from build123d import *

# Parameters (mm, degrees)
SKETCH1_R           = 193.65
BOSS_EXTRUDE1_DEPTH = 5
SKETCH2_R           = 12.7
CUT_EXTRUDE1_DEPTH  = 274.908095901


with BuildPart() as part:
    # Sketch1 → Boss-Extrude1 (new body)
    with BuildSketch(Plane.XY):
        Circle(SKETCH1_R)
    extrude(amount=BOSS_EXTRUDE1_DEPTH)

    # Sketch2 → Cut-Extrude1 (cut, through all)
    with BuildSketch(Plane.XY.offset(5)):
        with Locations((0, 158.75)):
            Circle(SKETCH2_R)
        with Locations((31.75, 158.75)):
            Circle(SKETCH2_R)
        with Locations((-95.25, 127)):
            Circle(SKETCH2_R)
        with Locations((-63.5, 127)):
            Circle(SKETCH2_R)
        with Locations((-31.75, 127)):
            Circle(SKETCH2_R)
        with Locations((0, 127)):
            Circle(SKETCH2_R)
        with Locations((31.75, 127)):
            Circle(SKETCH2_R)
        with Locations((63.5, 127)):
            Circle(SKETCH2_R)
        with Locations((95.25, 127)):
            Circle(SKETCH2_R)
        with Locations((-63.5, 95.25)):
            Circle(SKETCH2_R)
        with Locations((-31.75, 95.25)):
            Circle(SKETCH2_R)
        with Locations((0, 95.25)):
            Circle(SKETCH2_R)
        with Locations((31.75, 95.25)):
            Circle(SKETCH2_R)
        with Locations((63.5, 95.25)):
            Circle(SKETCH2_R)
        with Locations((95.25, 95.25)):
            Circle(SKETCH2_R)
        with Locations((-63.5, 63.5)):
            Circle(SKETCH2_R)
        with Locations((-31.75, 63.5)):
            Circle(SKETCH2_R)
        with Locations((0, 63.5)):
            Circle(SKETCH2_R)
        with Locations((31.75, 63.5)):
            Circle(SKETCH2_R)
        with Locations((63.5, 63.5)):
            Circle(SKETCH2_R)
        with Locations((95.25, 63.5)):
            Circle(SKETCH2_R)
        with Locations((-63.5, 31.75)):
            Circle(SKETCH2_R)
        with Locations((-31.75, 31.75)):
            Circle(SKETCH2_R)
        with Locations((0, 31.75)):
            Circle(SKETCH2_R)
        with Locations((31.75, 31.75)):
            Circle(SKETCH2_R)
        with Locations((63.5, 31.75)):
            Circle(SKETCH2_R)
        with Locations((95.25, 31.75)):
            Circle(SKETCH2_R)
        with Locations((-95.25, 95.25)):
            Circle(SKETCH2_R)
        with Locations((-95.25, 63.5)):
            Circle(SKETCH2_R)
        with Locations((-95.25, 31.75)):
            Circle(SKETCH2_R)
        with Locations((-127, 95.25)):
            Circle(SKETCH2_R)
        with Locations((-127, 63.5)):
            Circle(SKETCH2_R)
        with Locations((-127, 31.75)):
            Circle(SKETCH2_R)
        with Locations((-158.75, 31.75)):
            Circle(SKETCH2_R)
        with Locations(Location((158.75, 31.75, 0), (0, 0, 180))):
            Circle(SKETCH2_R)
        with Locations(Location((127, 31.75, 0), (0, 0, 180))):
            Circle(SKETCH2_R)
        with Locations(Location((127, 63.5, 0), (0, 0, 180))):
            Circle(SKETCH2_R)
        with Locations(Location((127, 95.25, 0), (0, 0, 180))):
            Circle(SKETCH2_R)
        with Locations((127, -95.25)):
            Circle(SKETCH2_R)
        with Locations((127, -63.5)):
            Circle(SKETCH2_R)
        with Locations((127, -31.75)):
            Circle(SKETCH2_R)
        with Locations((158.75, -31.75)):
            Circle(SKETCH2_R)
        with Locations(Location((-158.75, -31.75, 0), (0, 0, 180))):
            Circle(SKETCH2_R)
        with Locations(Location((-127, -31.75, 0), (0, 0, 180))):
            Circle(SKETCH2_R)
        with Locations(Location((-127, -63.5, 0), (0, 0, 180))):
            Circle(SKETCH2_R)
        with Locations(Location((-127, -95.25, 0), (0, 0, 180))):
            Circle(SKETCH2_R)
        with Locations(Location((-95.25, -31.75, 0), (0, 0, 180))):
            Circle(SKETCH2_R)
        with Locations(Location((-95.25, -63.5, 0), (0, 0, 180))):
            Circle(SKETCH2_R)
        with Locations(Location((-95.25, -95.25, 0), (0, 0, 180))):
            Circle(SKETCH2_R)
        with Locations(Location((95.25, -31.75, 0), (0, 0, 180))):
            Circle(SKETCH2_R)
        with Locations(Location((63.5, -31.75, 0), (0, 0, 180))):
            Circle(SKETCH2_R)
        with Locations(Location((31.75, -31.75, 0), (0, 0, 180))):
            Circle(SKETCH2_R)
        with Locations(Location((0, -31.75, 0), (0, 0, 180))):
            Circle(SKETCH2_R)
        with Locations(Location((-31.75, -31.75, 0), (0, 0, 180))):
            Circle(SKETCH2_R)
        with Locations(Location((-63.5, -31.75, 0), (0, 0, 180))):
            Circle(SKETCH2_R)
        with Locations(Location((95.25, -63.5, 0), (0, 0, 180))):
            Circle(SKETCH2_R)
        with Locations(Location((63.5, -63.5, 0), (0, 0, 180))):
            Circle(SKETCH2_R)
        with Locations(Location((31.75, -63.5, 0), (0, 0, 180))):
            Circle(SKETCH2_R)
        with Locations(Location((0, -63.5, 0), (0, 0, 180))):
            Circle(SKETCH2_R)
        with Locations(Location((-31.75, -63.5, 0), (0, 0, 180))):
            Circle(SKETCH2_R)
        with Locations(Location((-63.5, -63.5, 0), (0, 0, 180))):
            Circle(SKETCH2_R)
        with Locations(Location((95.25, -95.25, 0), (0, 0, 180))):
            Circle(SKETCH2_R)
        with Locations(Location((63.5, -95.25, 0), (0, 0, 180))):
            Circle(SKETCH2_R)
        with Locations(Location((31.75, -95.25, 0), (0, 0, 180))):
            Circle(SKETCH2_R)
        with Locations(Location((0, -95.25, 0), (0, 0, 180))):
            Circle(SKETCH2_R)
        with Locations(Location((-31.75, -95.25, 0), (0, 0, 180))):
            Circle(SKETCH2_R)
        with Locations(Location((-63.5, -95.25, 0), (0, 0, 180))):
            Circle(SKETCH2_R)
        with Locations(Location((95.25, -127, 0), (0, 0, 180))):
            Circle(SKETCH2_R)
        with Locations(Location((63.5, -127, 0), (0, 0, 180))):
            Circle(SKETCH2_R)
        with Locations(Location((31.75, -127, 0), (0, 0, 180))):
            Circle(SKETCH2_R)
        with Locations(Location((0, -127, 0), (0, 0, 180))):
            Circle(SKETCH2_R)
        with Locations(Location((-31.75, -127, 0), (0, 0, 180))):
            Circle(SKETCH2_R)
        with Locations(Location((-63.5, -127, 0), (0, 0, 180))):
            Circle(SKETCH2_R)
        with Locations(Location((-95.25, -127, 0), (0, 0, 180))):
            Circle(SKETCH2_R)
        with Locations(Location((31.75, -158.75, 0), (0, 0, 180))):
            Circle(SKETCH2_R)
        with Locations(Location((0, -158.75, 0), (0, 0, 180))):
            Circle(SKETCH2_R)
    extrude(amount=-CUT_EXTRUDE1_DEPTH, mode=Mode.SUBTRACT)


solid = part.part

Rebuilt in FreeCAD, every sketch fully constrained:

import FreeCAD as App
import Part
import Sketcher
from FreeCAD import Vector

doc = App.newDocument("Part")
params = doc.addObject("Spreadsheet::Sheet", "Params")
for row, (alias, value) in enumerate([
    ("sketch1_diameter", "387.3 mm"),
    ("pad1_length", "5 mm"),
    ("sketch2_diameter", "25.4 mm"),
], start=1):
    params.set(f"A{row}", alias)
    params.set(f"B{row}", "=" + value)
    params.setAlias(f"B{row}", alias)

body = doc.addObject("PartDesign::Body", "Body")

# Sketch on XY plane
sketch1 = body.newObject("Sketcher::SketchObject", "Sketch")
sketch1.AttachmentSupport = (doc.getObject("XY_Plane"), [""])
sketch1.MapMode = "FlatFace"
sketch1.addGeometry(Part.Circle(Vector(0, 0, 0), Vector(0, 0, 1), 194), False)
sketch1.addConstraint(Sketcher.Constraint("Coincident", 0, 3, -1, 1))
sketch1.addConstraint(Sketcher.Constraint("Diameter", 0, 387.3))
sketch1.setExpression("Constraints[1]", "Params.sketch1_diameter")
pad1 = body.newObject("PartDesign::Pad", "Pad")
pad1.Profile = sketch1
pad1.setExpression("Length", "Params.pad1_length")

# Sketch on XY plane
sketch2 = body.newObject("Sketcher::SketchObject", "Sketch001")
sketch2.AttachmentSupport = (doc.getObject("XY_Plane"), [""])
sketch2.MapMode = "FlatFace"
sketch2.AttachmentOffset = App.Placement(Vector(0, 0, 5), App.Rotation())
sketch2.addGeometry(Part.Circle(Vector(0, 159, 0), Vector(0, 0, 1), 13), False)
sketch2.addGeometry(Part.Circle(Vector(32, 159, 0), Vector(0, 0, 1), 13), False)
sketch2.addGeometry(Part.Circle(Vector(-95, 127, 0), Vector(0, 0, 1), 13), False)
sketch2.addGeometry(Part.Circle(Vector(-64, 127, 0), Vector(0, 0, 1), 13), False)
sketch2.addGeometry(Part.Circle(Vector(-32, 127, 0), Vector(0, 0, 1), 13), False)
sketch2.addGeometry(Part.Circle(Vector(0, 127, 0), Vector(0, 0, 1), 13), False)
sketch2.addGeometry(Part.Circle(Vector(32, 127, 0), Vector(0, 0, 1), 13), False)
sketch2.addGeometry(Part.Circle(Vector(64, 127, 0), Vector(0, 0, 1), 13), False)
sketch2.addGeometry(Part.Circle(Vector(95, 127, 0), Vector(0, 0, 1), 13), False)
sketch2.addGeometry(Part.Circle(Vector(-64, 95, 0), Vector(0, 0, 1), 13), False)
sketch2.addGeometry(Part.Circle(Vector(-32, 95, 0), Vector(0, 0, 1), 13), False)
sketch2.addGeometry(Part.Circle(Vector(0, 95, 0), Vector(0, 0, 1), 13), False)
sketch2.addGeometry(Part.Circle(Vector(32, 95, 0), Vector(0, 0, 1), 13), False)
sketch2.addGeometry(Part.Circle(Vector(64, 95, 0), Vector(0, 0, 1), 13), False)
sketch2.addGeometry(Part.Circle(Vector(95, 95, 0), Vector(0, 0, 1), 13), False)
sketch2.addGeometry(Part.Circle(Vector(-64, 64, 0), Vector(0, 0, 1), 13), False)
sketch2.addGeometry(Part.Circle(Vector(-32, 64, 0), Vector(0, 0, 1), 13), False)
sketch2.addGeometry(Part.Circle(Vector(0, 64, 0), Vector(0, 0, 1), 13), False)
sketch2.addGeometry(Part.Circle(Vector(32, 64, 0), Vector(0, 0, 1), 13), False)
sketch2.addGeometry(Part.Circle(Vector(64, 64, 0), Vector(0, 0, 1), 13), False)
sketch2.addGeometry(Part.Circle(Vector(95, 64, 0), Vector(0, 0, 1), 13), False)
sketch2.addGeometry(Part.Circle(Vector(-64, 32, 0), Vector(0, 0, 1), 13), False)
sketch2.addGeometry(Part.Circle(Vector(-32, 32, 0), Vector(0, 0, 1), 13), False)
sketch2.addGeometry(Part.Circle(Vector(0, 32, 0), Vector(0, 0, 1), 13), False)
sketch2.addGeometry(Part.Circle(Vector(32, 32, 0), Vector(0, 0, 1), 13), False)
sketch2.addGeometry(Part.Circle(Vector(64, 32, 0), Vector(0, 0, 1), 13), False)
sketch2.addGeometry(Part.Circle(Vector(95, 32, 0), Vector(0, 0, 1), 13), False)
sketch2.addGeometry(Part.Circle(Vector(-95, 95, 0), Vector(0, 0, 1), 13), False)
sketch2.addGeometry(Part.Circle(Vector(-95, 64, 0), Vector(0, 0, 1), 13), False)
sketch2.addGeometry(Part.Circle(Vector(-95, 32, 0), Vector(0, 0, 1), 13), False)
sketch2.addGeometry(Part.Circle(Vector(-127, 95, 0), Vector(0, 0, 1), 13), False)
sketch2.addGeometry(Part.Circle(Vector(-127, 64, 0), Vector(0, 0, 1), 13), False)
sketch2.addGeometry(Part.Circle(Vector(-127, 32, 0), Vector(0, 0, 1), 13), False)
sketch2.addGeometry(Part.Circle(Vector(-159, 32, 0), Vector(0, 0, 1), 13), False)
sketch2.addGeometry(Part.Circle(Vector(159, 32, 0), Vector(0, 0, 1), 13), False)
sketch2.addGeometry(Part.Circle(Vector(127, 32, 0), Vector(0, 0, 1), 13), False)
sketch2.addGeometry(Part.Circle(Vector(127, 64, 0), Vector(0, 0, 1), 13), False)
sketch2.addGeometry(Part.Circle(Vector(127, 95, 0), Vector(0, 0, 1), 13), False)
sketch2.addGeometry(Part.Circle(Vector(127, -95, 0), Vector(0, 0, 1), 13), False)
sketch2.addGeometry(Part.Circle(Vector(127, -64, 0), Vector(0, 0, 1), 13), False)
sketch2.addGeometry(Part.Circle(Vector(127, -32, 0), Vector(0, 0, 1), 13), False)
sketch2.addGeometry(Part.Circle(Vector(159, -32, 0), Vector(0, 0, 1), 13), False)
sketch2.addGeometry(Part.Circle(Vector(-159, -32, 0), Vector(0, 0, 1), 13), False)
sketch2.addGeometry(Part.Circle(Vector(-127, -32, 0), Vector(0, 0, 1), 13), False)
sketch2.addGeometry(Part.Circle(Vector(-127, -64, 0), Vector(0, 0, 1), 13), False)
sketch2.addGeometry(Part.Circle(Vector(-127, -95, 0), Vector(0, 0, 1), 13), False)
sketch2.addGeometry(Part.Circle(Vector(-95, -32, 0), Vector(0, 0, 1), 13), False)
sketch2.addGeometry(Part.Circle(Vector(-95, -64, 0), Vector(0, 0, 1), 13), False)
sketch2.addGeometry(Part.Circle(Vector(-95, -95, 0), Vector(0, 0, 1), 13), False)
sketch2.addGeometry(Part.Circle(Vector(95, -32, 0), Vector(0, 0, 1), 13), False)
sketch2.addGeometry(Part.Circle(Vector(64, -32, 0), Vector(0, 0, 1), 13), False)
sketch2.addGeometry(Part.Circle(Vector(32, -32, 0), Vector(0, 0, 1), 13), False)
sketch2.addGeometry(Part.Circle(Vector(0, -32, 0), Vector(0, 0, 1), 13), False)
sketch2.addGeometry(Part.Circle(Vector(-32, -32, 0), Vector(0, 0, 1), 13), False)
sketch2.addGeometry(Part.Circle(Vector(-64, -32, 0), Vector(0, 0, 1), 13), False)
sketch2.addGeometry(Part.Circle(Vector(95, -64, 0), Vector(0, 0, 1), 13), False)
sketch2.addGeometry(Part.Circle(Vector(64, -64, 0), Vector(0, 0, 1), 13), False)
sketch2.addGeometry(Part.Circle(Vector(32, -64, 0), Vector(0, 0, 1), 13), False)
sketch2.addGeometry(Part.Circle(Vector(0, -64, 0), Vector(0, 0, 1), 13), False)
sketch2.addGeometry(Part.Circle(Vector(-32, -64, 0), Vector(0, 0, 1), 13), False)
sketch2.addGeometry(Part.Circle(Vector(-64, -64, 0), Vector(0, 0, 1), 13), False)
sketch2.addGeometry(Part.Circle(Vector(95, -95, 0), Vector(0, 0, 1), 13), False)
sketch2.addGeometry(Part.Circle(Vector(64, -95, 0), Vector(0, 0, 1), 13), False)
sketch2.addGeometry(Part.Circle(Vector(32, -95, 0), Vector(0, 0, 1), 13), False)
sketch2.addGeometry(Part.Circle(Vector(0, -95, 0), Vector(0, 0, 1), 13), False)
sketch2.addGeometry(Part.Circle(Vector(-32, -95, 0), Vector(0, 0, 1), 13), False)
sketch2.addGeometry(Part.Circle(Vector(-64, -95, 0), Vector(0, 0, 1), 13), False)
sketch2.addGeometry(Part.Circle(Vector(95, -127, 0), Vector(0, 0, 1), 13), False)
sketch2.addGeometry(Part.Circle(Vector(64, -127, 0), Vector(0, 0, 1), 13), False)
sketch2.addGeometry(Part.Circle(Vector(32, -127, 0), Vector(0, 0, 1), 13), False)
sketch2.addGeometry(Part.Circle(Vector(0, -127, 0), Vector(0, 0, 1), 13), False)
sketch2.addGeometry(Part.Circle(Vector(-32, -127, 0), Vector(0, 0, 1), 13), False)
sketch2.addGeometry(Part.Circle(Vector(-64, -127, 0), Vector(0, 0, 1), 13), False)
sketch2.addGeometry(Part.Circle(Vector(-95, -127, 0), Vector(0, 0, 1), 13), False)
sketch2.addGeometry(Part.Circle(Vector(32, -159, 0), Vector(0, 0, 1), 13), False)
sketch2.addGeometry(Part.Circle(Vector(0, -159, 0), Vector(0, 0, 1), 13), False)
sketch2.addConstraint(Sketcher.Constraint("Equal", 0, 1))
sketch2.addConstraint(Sketcher.Constraint("Equal", 1, 2))
sketch2.addConstraint(Sketcher.Constraint("Equal", 2, 3))
sketch2.addConstraint(Sketcher.Constraint("Equal", 3, 4))
sketch2.addConstraint(Sketcher.Constraint("Equal", 4, 5))
sketch2.addConstraint(Sketcher.Constraint("Equal", 5, 6))
sketch2.addConstraint(Sketcher.Constraint("Equal", 6, 7))
sketch2.addConstraint(Sketcher.Constraint("Equal", 7, 8))
sketch2.addConstraint(Sketcher.Constraint("Equal", 8, 9))
sketch2.addConstraint(Sketcher.Constraint("Equal", 9, 10))
sketch2.addConstraint(Sketcher.Constraint("Equal", 10, 11))
sketch2.addConstraint(Sketcher.Constraint("Equal", 11, 12))
sketch2.addConstraint(Sketcher.Constraint("Equal", 12, 13))
sketch2.addConstraint(Sketcher.Constraint("Equal", 13, 14))
sketch2.addConstraint(Sketcher.Constraint("Equal", 14, 15))
sketch2.addConstraint(Sketcher.Constraint("Equal", 15, 16))
sketch2.addConstraint(Sketcher.Constraint("Equal", 16, 17))
sketch2.addConstraint(Sketcher.Constraint("Equal", 17, 18))
sketch2.addConstraint(Sketcher.Constraint("Equal", 18, 19))
sketch2.addConstraint(Sketcher.Constraint("Equal", 19, 20))
sketch2.addConstraint(Sketcher.Constraint("Equal", 20, 21))
sketch2.addConstraint(Sketcher.Constraint("Equal", 21, 22))
sketch2.addConstraint(Sketcher.Constraint("Equal", 22, 23))
sketch2.addConstraint(Sketcher.Constraint("Equal", 23, 24))
sketch2.addConstraint(Sketcher.Constraint("Equal", 24, 25))
sketch2.addConstraint(Sketcher.Constraint("Equal", 25, 26))
sketch2.addConstraint(Sketcher.Constraint("Equal", 26, 27))
sketch2.addConstraint(Sketcher.Constraint("Equal", 27, 28))
sketch2.addConstraint(Sketcher.Constraint("Equal", 28, 29))
sketch2.addConstraint(Sketcher.Constraint("Equal", 29, 30))
sketch2.addConstraint(Sketcher.Constraint("Equal", 30, 31))
sketch2.addConstraint(Sketcher.Constraint("Equal", 31, 32))
sketch2.addConstraint(Sketcher.Constraint("Equal", 32, 33))
sketch2.addConstraint(Sketcher.Constraint("Equal", 33, 34))
sketch2.addConstraint(Sketcher.Constraint("Equal", 34, 35))
sketch2.addConstraint(Sketcher.Constraint("Equal", 35, 36))
sketch2.addConstraint(Sketcher.Constraint("Equal", 36, 37))
sketch2.addConstraint(Sketcher.Constraint("Equal", 37, 38))
sketch2.addConstraint(Sketcher.Constraint("Equal", 38, 39))
sketch2.addConstraint(Sketcher.Constraint("Equal", 39, 40))
sketch2.addConstraint(Sketcher.Constraint("Equal", 40, 41))
sketch2.addConstraint(Sketcher.Constraint("Equal", 41, 42))
sketch2.addConstraint(Sketcher.Constraint("Equal", 42, 43))
sketch2.addConstraint(Sketcher.Constraint("Equal", 43, 44))
sketch2.addConstraint(Sketcher.Constraint("Equal", 44, 45))
sketch2.addConstraint(Sketcher.Constraint("Equal", 45, 46))
sketch2.addConstraint(Sketcher.Constraint("Equal", 46, 47))
sketch2.addConstraint(Sketcher.Constraint("Equal", 47, 48))
sketch2.addConstraint(Sketcher.Constraint("Equal", 48, 49))
sketch2.addConstraint(Sketcher.Constraint("Equal", 49, 50))
sketch2.addConstraint(Sketcher.Constraint("Equal", 50, 51))
sketch2.addConstraint(Sketcher.Constraint("Equal", 51, 52))
sketch2.addConstraint(Sketcher.Constraint("Equal", 52, 53))
sketch2.addConstraint(Sketcher.Constraint("Equal", 53, 54))
sketch2.addConstraint(Sketcher.Constraint("Equal", 54, 55))
sketch2.addConstraint(Sketcher.Constraint("Equal", 55, 56))
sketch2.addConstraint(Sketcher.Constraint("Equal", 56, 57))
sketch2.addConstraint(Sketcher.Constraint("Equal", 57, 58))
sketch2.addConstraint(Sketcher.Constraint("Equal", 58, 59))
sketch2.addConstraint(Sketcher.Constraint("Equal", 59, 60))
sketch2.addConstraint(Sketcher.Constraint("Equal", 60, 61))
sketch2.addConstraint(Sketcher.Constraint("Equal", 61, 62))
sketch2.addConstraint(Sketcher.Constraint("Equal", 62, 63))
sketch2.addConstraint(Sketcher.Constraint("Equal", 63, 64))
sketch2.addConstraint(Sketcher.Constraint("Equal", 64, 65))
sketch2.addConstraint(Sketcher.Constraint("Equal", 65, 66))
sketch2.addConstraint(Sketcher.Constraint("Equal", 66, 67))
sketch2.addConstraint(Sketcher.Constraint("Equal", 67, 68))
sketch2.addConstraint(Sketcher.Constraint("Equal", 68, 69))
sketch2.addConstraint(Sketcher.Constraint("Equal", 69, 70))
sketch2.addConstraint(Sketcher.Constraint("Equal", 70, 71))
sketch2.addConstraint(Sketcher.Constraint("Equal", 71, 72))
sketch2.addConstraint(Sketcher.Constraint("Equal", 72, 73))
sketch2.addConstraint(Sketcher.Constraint("Equal", 73, 74))
sketch2.addConstraint(Sketcher.Constraint("Equal", 74, 75))
sketch2.addConstraint(Sketcher.Constraint("Symmetric", 30, 3, 38, 3, -1, 1))
sketch2.addConstraint(Sketcher.Constraint("Symmetric", 31, 3, 39, 3, -1, 1))
sketch2.addConstraint(Sketcher.Constraint("Symmetric", 32, 3, 40, 3, -1, 1))
sketch2.addConstraint(Sketcher.Constraint("Symmetric", 33, 3, 41, 3, -1, 1))
sketch2.addConstraint(Sketcher.Constraint("Symmetric", 34, 3, 42, 3, -1, 1))
sketch2.addConstraint(Sketcher.Constraint("Symmetric", 35, 3, 43, 3, -1, 1))
sketch2.addConstraint(Sketcher.Constraint("Symmetric", 36, 3, 44, 3, -1, 1))
sketch2.addConstraint(Sketcher.Constraint("Symmetric", 37, 3, 45, 3, -1, 1))
sketch2.addConstraint(Sketcher.Constraint("Symmetric", 26, 3, 46, 3, -1, 1))
sketch2.addConstraint(Sketcher.Constraint("Symmetric", 20, 3, 47, 3, -1, 1))
sketch2.addConstraint(Sketcher.Constraint("Symmetric", 14, 3, 48, 3, -1, 1))
sketch2.addConstraint(Sketcher.Constraint("Symmetric", 29, 3, 49, 3, -1, 1))
sketch2.addConstraint(Sketcher.Constraint("Symmetric", 21, 3, 50, 3, -1, 1))
sketch2.addConstraint(Sketcher.Constraint("Symmetric", 22, 3, 51, 3, -1, 1))
sketch2.addConstraint(Sketcher.Constraint("Symmetric", 23, 3, 52, 3, -1, 1))
sketch2.addConstraint(Sketcher.Constraint("Symmetric", 24, 3, 53, 3, -1, 1))
sketch2.addConstraint(Sketcher.Constraint("Symmetric", 25, 3, 54, 3, -1, 1))
sketch2.addConstraint(Sketcher.Constraint("Symmetric", 28, 3, 55, 3, -1, 1))
sketch2.addConstraint(Sketcher.Constraint("Symmetric", 15, 3, 56, 3, -1, 1))
sketch2.addConstraint(Sketcher.Constraint("Symmetric", 16, 3, 57, 3, -1, 1))
sketch2.addConstraint(Sketcher.Constraint("Symmetric", 17, 3, 58, 3, -1, 1))
sketch2.addConstraint(Sketcher.Constraint("Symmetric", 18, 3, 59, 3, -1, 1))
sketch2.addConstraint(Sketcher.Constraint("Symmetric", 19, 3, 60, 3, -1, 1))
sketch2.addConstraint(Sketcher.Constraint("Symmetric", 27, 3, 61, 3, -1, 1))
sketch2.addConstraint(Sketcher.Constraint("Symmetric", 9, 3, 62, 3, -1, 1))
sketch2.addConstraint(Sketcher.Constraint("Symmetric", 10, 3, 63, 3, -1, 1))
sketch2.addConstraint(Sketcher.Constraint("Symmetric", 11, 3, 64, 3, -1, 1))
sketch2.addConstraint(Sketcher.Constraint("Symmetric", 12, 3, 65, 3, -1, 1))
sketch2.addConstraint(Sketcher.Constraint("Symmetric", 13, 3, 66, 3, -1, 1))
sketch2.addConstraint(Sketcher.Constraint("Symmetric", 2, 3, 67, 3, -1, 1))
sketch2.addConstraint(Sketcher.Constraint("Symmetric", 3, 3, 68, 3, -1, 1))
sketch2.addConstraint(Sketcher.Constraint("Symmetric", 4, 3, 69, 3, -1, 1))
sketch2.addConstraint(Sketcher.Constraint("Symmetric", 5, 3, 70, 3, -1, 1))
sketch2.addConstraint(Sketcher.Constraint("Symmetric", 6, 3, 71, 3, -1, 1))
sketch2.addConstraint(Sketcher.Constraint("Symmetric", 7, 3, 72, 3, -1, 1))
sketch2.addConstraint(Sketcher.Constraint("Symmetric", 8, 3, 73, 3, -1, 1))
sketch2.addConstraint(Sketcher.Constraint("Symmetric", 0, 3, 75, 3, -1, 1))
sketch2.addConstraint(Sketcher.Constraint("Symmetric", 4, 3, 6, 3, -2))
sketch2.addConstraint(Sketcher.Constraint("Symmetric", 3, 3, 7, 3, -2))
sketch2.addConstraint(Sketcher.Constraint("Symmetric", 2, 3, 8, 3, -2))
sketch2.addConstraint(Sketcher.Constraint("Symmetric", 10, 3, 12, 3, -2))
sketch2.addConstraint(Sketcher.Constraint("Symmetric", 9, 3, 13, 3, -2))
sketch2.addConstraint(Sketcher.Constraint("Symmetric", 16, 3, 18, 3, -2))
sketch2.addConstraint(Sketcher.Constraint("Symmetric", 15, 3, 19, 3, -2))
sketch2.addConstraint(Sketcher.Constraint("Symmetric", 22, 3, 24, 3, -2))
sketch2.addConstraint(Sketcher.Constraint("Symmetric", 21, 3, 25, 3, -2))
sketch2.addConstraint(Sketcher.Constraint("Symmetric", 14, 3, 27, 3, -2))
sketch2.addConstraint(Sketcher.Constraint("Symmetric", 20, 3, 28, 3, -2))
sketch2.addConstraint(Sketcher.Constraint("Symmetric", 26, 3, 29, 3, -2))
sketch2.addConstraint(Sketcher.Constraint("Symmetric", 33, 3, 34, 3, -2))
sketch2.addConstraint(Sketcher.Constraint("Symmetric", 32, 3, 35, 3, -2))
sketch2.addConstraint(Sketcher.Constraint("Symmetric", 31, 3, 36, 3, -2))
sketch2.addConstraint(Sketcher.Constraint("Symmetric", 30, 3, 37, 3, -2))
sketch2.addConstraint(Sketcher.Constraint("Symmetric", 1, 3, 74, 3, -1))
sketch2.addConstraint(Sketcher.Constraint("PointOnObject", 0, 3, -2))
sketch2.addConstraint(Sketcher.Constraint("PointOnObject", 5, 3, -2))
sketch2.addConstraint(Sketcher.Constraint("PointOnObject", 11, 3, -2))
sketch2.addConstraint(Sketcher.Constraint("PointOnObject", 17, 3, -2))
sketch2.addConstraint(Sketcher.Constraint("PointOnObject", 23, 3, -2))
sketch2.addConstraint(Sketcher.Constraint("Horizontal", 0, 3, 1, 3))
sketch2.addConstraint(Sketcher.Constraint("Horizontal", 2, 3, 3, 3))
sketch2.addConstraint(Sketcher.Constraint("Horizontal", 3, 3, 4, 3))
sketch2.addConstraint(Sketcher.Constraint("Horizontal", 4, 3, 5, 3))
sketch2.addConstraint(Sketcher.Constraint("Horizontal", 9, 3, 10, 3))
sketch2.addConstraint(Sketcher.Constraint("Horizontal", 10, 3, 11, 3))
sketch2.addConstraint(Sketcher.Constraint("Horizontal", 13, 3, 14, 3))
sketch2.addConstraint(Sketcher.Constraint("Horizontal", 15, 3, 16, 3))
sketch2.addConstraint(Sketcher.Constraint("Horizontal", 16, 3, 17, 3))
sketch2.addConstraint(Sketcher.Constraint("Horizontal", 19, 3, 20, 3))
sketch2.addConstraint(Sketcher.Constraint("Horizontal", 21, 3, 22, 3))
sketch2.addConstraint(Sketcher.Constraint("Horizontal", 22, 3, 23, 3))
sketch2.addConstraint(Sketcher.Constraint("Horizontal", 25, 3, 26, 3))
sketch2.addConstraint(Sketcher.Constraint("Horizontal", 27, 3, 30, 3))
sketch2.addConstraint(Sketcher.Constraint("Horizontal", 28, 3, 31, 3))
sketch2.addConstraint(Sketcher.Constraint("Horizontal", 29, 3, 32, 3))
sketch2.addConstraint(Sketcher.Constraint("Horizontal", 32, 3, 33, 3))
sketch2.addConstraint(Sketcher.Constraint("Vertical", 1, 3, 6, 3))
sketch2.addConstraint(Sketcher.Constraint("Vertical", 3, 3, 9, 3))
sketch2.addConstraint(Sketcher.Constraint("Vertical", 4, 3, 10, 3))
sketch2.addConstraint(Sketcher.Constraint("Vertical", 8, 3, 14, 3))
sketch2.addConstraint(Sketcher.Constraint("Vertical", 9, 3, 15, 3))
sketch2.addConstraint(Sketcher.Constraint("Vertical", 10, 3, 16, 3))
sketch2.addConstraint(Sketcher.Constraint("Vertical", 14, 3, 20, 3))
sketch2.addConstraint(Sketcher.Constraint("Vertical", 15, 3, 21, 3))
sketch2.addConstraint(Sketcher.Constraint("Vertical", 16, 3, 22, 3))
sketch2.addConstraint(Sketcher.Constraint("Vertical", 20, 3, 26, 3))
sketch2.addConstraint(Sketcher.Constraint("Vertical", 30, 3, 31, 3))
sketch2.addConstraint(Sketcher.Constraint("Vertical", 31, 3, 32, 3))
sketch2.addConstraint(Sketcher.Constraint("Diameter", 0, 25.4))
sketch2.addConstraint(Sketcher.Constraint("DistanceY", -1, 1, 2, 3, 127.0))
sketch2.addConstraint(Sketcher.Constraint("DistanceX", 30, 3, -1, 1, 127.0))
sketch2.addConstraint(Sketcher.Constraint("DistanceX", 3, 3, -1, 1, 63.5))
sketch2.addConstraint(Sketcher.Constraint("DistanceY", -1, 1, 15, 3, 63.5))
sketch2.addConstraint(Sketcher.Constraint("DistanceY", -1, 1, 0, 3, 158.75))
sketch2.addConstraint(Sketcher.Constraint("DistanceX", -1, 1, 1, 3, 31.75))
sketch2.addConstraint(Sketcher.Constraint("DistanceX", 2, 3, -1, 1, 95.25))
sketch2.addConstraint(Sketcher.Constraint("DistanceY", -1, 1, 9, 3, 95.25))
sketch2.addConstraint(Sketcher.Constraint("DistanceY", -1, 1, 21, 3, 31.75))
sketch2.addConstraint(Sketcher.Constraint("DistanceX", 33, 3, -1, 1, 158.75))
sketch2.setExpression("Constraints[163]", "Params.sketch2_diameter")
pocket1 = body.newObject("PartDesign::Pocket", "Pocket")
pocket1.Profile = sketch2
pocket1.Type = "ThroughAll"

doc.recompute()
